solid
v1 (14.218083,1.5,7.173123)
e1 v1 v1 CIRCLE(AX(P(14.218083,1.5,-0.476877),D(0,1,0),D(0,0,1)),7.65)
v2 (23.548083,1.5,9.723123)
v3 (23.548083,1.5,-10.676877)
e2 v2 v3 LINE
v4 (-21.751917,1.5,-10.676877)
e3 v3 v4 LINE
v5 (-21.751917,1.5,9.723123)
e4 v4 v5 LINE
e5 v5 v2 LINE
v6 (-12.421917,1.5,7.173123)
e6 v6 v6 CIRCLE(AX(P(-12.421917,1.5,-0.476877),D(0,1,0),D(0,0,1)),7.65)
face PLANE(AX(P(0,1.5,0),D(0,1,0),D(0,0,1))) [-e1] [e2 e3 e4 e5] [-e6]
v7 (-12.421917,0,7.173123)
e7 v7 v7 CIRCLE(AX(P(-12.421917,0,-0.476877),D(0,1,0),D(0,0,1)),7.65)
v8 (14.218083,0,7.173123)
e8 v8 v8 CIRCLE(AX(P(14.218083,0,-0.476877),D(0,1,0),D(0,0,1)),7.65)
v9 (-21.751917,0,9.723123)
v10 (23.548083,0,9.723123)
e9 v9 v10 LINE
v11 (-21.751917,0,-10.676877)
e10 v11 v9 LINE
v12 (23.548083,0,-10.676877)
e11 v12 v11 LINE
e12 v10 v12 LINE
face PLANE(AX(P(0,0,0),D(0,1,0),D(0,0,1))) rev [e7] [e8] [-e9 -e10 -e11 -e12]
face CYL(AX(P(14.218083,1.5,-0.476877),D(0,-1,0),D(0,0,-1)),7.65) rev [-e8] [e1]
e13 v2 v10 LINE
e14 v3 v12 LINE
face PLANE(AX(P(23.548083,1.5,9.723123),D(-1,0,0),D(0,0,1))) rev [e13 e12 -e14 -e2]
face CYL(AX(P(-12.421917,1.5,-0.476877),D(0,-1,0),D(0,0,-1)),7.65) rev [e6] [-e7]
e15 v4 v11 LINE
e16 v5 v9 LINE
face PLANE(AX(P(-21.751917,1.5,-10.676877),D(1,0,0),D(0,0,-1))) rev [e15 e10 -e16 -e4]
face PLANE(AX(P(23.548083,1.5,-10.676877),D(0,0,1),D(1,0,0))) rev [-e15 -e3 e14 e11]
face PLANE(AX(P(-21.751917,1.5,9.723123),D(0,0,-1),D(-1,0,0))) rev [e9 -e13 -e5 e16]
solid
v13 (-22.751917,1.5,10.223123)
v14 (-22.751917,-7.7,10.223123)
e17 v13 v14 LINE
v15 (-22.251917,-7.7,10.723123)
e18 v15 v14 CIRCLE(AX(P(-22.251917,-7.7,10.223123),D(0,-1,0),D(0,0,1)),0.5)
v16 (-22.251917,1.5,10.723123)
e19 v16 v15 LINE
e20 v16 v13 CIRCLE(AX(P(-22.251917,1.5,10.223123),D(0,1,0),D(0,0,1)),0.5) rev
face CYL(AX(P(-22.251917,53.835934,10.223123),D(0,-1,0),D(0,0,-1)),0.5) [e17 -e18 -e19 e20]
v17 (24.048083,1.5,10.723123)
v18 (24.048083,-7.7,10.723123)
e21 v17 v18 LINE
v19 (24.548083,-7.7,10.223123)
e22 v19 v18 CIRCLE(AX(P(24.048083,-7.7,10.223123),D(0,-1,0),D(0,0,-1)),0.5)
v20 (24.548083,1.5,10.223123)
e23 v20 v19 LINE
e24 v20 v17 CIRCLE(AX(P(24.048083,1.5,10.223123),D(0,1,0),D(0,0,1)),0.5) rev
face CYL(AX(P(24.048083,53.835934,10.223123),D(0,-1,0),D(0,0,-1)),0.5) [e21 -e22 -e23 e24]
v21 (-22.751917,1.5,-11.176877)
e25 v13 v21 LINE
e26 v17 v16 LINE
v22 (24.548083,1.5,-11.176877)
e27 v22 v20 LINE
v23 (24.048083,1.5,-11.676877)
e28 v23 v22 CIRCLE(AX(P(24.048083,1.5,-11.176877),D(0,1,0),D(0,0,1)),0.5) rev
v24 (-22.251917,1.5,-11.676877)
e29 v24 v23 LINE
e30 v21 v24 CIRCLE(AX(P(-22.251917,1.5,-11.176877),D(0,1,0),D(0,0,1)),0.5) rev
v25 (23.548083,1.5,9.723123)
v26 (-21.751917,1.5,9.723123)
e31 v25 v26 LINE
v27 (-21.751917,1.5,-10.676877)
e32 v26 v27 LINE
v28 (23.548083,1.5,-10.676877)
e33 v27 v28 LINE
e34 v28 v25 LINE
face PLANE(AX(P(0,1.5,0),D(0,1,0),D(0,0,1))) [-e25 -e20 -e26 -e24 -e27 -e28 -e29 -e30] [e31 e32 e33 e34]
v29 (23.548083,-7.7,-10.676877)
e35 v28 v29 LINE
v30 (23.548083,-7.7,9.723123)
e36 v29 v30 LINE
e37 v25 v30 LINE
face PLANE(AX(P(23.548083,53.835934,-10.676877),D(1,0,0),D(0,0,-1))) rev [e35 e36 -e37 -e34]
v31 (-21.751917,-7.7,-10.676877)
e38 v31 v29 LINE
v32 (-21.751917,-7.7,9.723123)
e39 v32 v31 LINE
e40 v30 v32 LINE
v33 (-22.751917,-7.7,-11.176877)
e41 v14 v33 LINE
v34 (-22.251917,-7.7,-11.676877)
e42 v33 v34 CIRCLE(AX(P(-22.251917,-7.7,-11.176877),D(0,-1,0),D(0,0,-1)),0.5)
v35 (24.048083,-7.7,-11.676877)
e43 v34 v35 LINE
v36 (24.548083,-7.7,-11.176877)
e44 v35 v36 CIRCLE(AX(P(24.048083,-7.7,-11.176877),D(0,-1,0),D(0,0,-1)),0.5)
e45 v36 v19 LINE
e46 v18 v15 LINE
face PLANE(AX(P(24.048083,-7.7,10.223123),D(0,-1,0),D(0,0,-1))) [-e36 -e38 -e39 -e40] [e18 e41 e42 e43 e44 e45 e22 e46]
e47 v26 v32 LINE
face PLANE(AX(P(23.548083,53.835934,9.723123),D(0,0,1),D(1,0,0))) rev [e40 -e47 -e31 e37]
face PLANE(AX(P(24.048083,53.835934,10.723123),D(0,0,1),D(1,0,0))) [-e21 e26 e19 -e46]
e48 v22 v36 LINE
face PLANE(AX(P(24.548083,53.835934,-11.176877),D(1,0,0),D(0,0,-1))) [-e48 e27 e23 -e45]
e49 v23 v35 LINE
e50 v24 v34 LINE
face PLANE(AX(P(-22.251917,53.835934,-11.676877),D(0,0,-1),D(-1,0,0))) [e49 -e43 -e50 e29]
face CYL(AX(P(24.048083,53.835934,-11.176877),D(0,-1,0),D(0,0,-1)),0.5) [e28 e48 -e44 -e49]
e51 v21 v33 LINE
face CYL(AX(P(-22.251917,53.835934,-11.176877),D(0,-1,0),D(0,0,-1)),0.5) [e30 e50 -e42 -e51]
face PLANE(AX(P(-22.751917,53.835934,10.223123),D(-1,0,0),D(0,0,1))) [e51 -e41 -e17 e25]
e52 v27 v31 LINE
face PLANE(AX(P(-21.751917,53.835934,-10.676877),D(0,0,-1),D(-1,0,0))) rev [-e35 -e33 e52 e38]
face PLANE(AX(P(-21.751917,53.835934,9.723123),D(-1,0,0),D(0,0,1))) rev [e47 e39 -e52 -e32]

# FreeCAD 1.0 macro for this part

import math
import FreeCAD as App
import Part
import Sketcher
from FreeCAD import Vector
Q = App.Units.Quantity

doc = App.newDocument("Part")
params = doc.addObject("Spreadsheet::Sheet", "Params")
for row, (alias, value) in enumerate([
    ("sketch1_diameter", "15.3 mm"),
    ("sketch1_width", "45.3 mm"),
    ("sketch1_height", "20.4 mm"),
    ("pad1_length", "1.5 mm"),
    ("sketch2_radius", "0.5 mm"),
    ("sketch2_width", "46.3 mm"),
    ("sketch2_width2", "45.3 mm"),
    ("sketch2_height", "21.4 mm"),
    ("sketch2_height2", "20.4 mm"),
    ("pad2_length", "7.7 mm"),
    ("pad2_length2", "1.5 mm"),
], start=1):
    params.set(f"A{row}", alias)
    params.set(f"B{row}", "=" + value)
    params.setAlias(f"B{row}", alias)

body = doc.addObject("PartDesign::Body", "Body")

sketch1 = body.newObject("Sketcher::SketchObject", "Sketch")
sketch1.AttachmentSupport = (doc.getObject("XZ_Plane"), [""])
sketch1.MapMode = "FlatFace"
sketch1.addGeometry([
    Part.LineSegment(Vector(-21.751917, -10.676877, 0), Vector(-21.751917, 9.723123, 0)),
    Part.LineSegment(Vector(-21.751917, 9.723123, 0), Vector(23.548083, 9.723123, 0)),
    Part.LineSegment(Vector(23.548083, 9.723123, 0), Vector(23.548083, -10.676877, 0)),
    Part.LineSegment(Vector(23.548083, -10.676877, 0), Vector(-21.751917, -10.676877, 0)),
    Part.Circle(Vector(-12.421917, -0.476877, 0), Vector(0, 0, 1), 7.65),
    Part.Circle(Vector(14.218083, -0.476877, 0), Vector(0, 0, 1), 7.65),
], False)
sketch1.addConstraint([
    Sketcher.Constraint("Coincident", 0, 2, 1, 1),
    Sketcher.Constraint("Coincident", 1, 2, 2, 1),
    Sketcher.Constraint("Coincident", 2, 2, 3, 1),
    Sketcher.Constraint("Coincident", 3, 2, 0, 1),
    Sketcher.Constraint("Vertical", 0),
    Sketcher.Constraint("Horizontal", 1),
    Sketcher.Constraint("Vertical", 2),
    Sketcher.Constraint("Horizontal", 3),
    Sketcher.Constraint("Equal", 4, 5),
    Sketcher.Constraint("Horizontal", 4, 3, 5, 3),
    Sketcher.Constraint("Diameter", 4, Q("15.3 mm")),
    Sketcher.Constraint("DistanceX", 1, 1, 1, 2, Q("45.3 mm")),
    Sketcher.Constraint("DistanceY", 0, 1, 0, 2, Q("20.4 mm")),
    Sketcher.Constraint("DistanceY", 4, 3, 0, 2, Q("10.2 mm")),
    Sketcher.Constraint("DistanceX", 4, 3, 5, 3, Q("26.64 mm")),
    Sketcher.Constraint("DistanceX", 0, 2, 4, 3, Q("9.33 mm")),
    Sketcher.Constraint("DistanceX", 4, 3, -1, 1, Q("12.421917 mm")),
    Sketcher.Constraint("DistanceY", 4, 3, -1, 1, Q("0.476877 mm")),
])
sketch1.setExpression("Constraints[10]", "Params.sketch1_diameter")
sketch1.setExpression("Constraints[11]", "Params.sketch1_width")
sketch1.setExpression("Constraints[12]", "Params.sketch1_height")
pad1 = body.newObject("PartDesign::Pad", "Pad")
pad1.Profile = sketch1
pad1.setExpression("Length", "Params.pad1_length")
pad1.Reversed = True
body2 = doc.addObject("PartDesign::Body", "Body001")

sketch2 = body2.newObject("Sketcher::SketchObject", "Sketch001")
sketch2.AttachmentSupport = (doc.getObject("XZ_Plane001"), [""])
sketch2.MapMode = "FlatFace"
sketch2.addGeometry([
    Part.LineSegment(Vector(-22.751917, 10.223123, 0), Vector(-22.751917, -11.176877, 0)),
    Part.ArcOfCircle(Part.Circle(Vector(-22.251917, -11.176877, 0), Vector(0, 0, 1), 0.5), math.radians(180), math.radians(270)),
    Part.LineSegment(Vector(-22.251917, -11.676877, 0), Vector(24.048083, -11.676877, 0)),
    Part.ArcOfCircle(Part.Circle(Vector(24.048083, -11.176877, 0), Vector(0, 0, 1), 0.5), math.radians(-90), math.radians(0)),
    Part.LineSegment(Vector(24.548083, -11.176877, 0), Vector(24.548083, 10.223123, 0)),
    Part.ArcOfCircle(Part.Circle(Vector(24.048083, 10.223123, 0), Vector(0, 0, 1), 0.5), math.radians(0), math.radians(90)),
    Part.LineSegment(Vector(24.048083, 10.723123, 0), Vector(-22.251917, 10.723123, 0)),
    Part.ArcOfCircle(Part.Circle(Vector(-22.251917, 10.223123, 0), Vector(0, 0, 1), 0.5), math.radians(90), math.radians(180)),
    Part.LineSegment(Vector(23.548083, -10.676877, 0), Vector(-21.751917, -10.676877, 0)),
    Part.LineSegment(Vector(-21.751917, -10.676877, 0), Vector(-21.751917, 9.723123, 0)),
    Part.LineSegment(Vector(-21.751917, 9.723123, 0), Vector(23.548083, 9.723123, 0)),
    Part.LineSegment(Vector(23.548083, 9.723123, 0), Vector(23.548083, -10.676877, 0)),
], False)
sketch2.addConstraint([
    Sketcher.Constraint("Tangent", 0, 2, 1, 1),
    Sketcher.Constraint("Tangent", 1, 2, 2, 1),
    Sketcher.Constraint("Tangent", 2, 2, 3, 1),
    Sketcher.Constraint("Tangent", 3, 2, 4, 1),
    Sketcher.Constraint("Tangent", 4, 2, 5, 1),
    Sketcher.Constraint("Tangent", 5, 2, 6, 1),
    Sketcher.Constraint("Tangent", 6, 2, 7, 1),
    Sketcher.Constraint("Tangent", 7, 2, 0, 1),
    Sketcher.Constraint("Coincident", 8, 2, 9, 1),
    Sketcher.Constraint("Coincident", 9, 2, 10, 1),
    Sketcher.Constraint("Coincident", 10, 2, 11, 1),
    Sketcher.Constraint("Coincident", 11, 2, 8, 1),
    Sketcher.Constraint("Vertical", 0),
    Sketcher.Constraint("Horizontal", 2),
    Sketcher.Constraint("Vertical", 4),
    Sketcher.Constraint("Horizontal", 6),
    Sketcher.Constraint("Horizontal", 8),
    Sketcher.Constraint("Vertical", 9),
    Sketcher.Constraint("Horizontal", 10),
    Sketcher.Constraint("Vertical", 11),
    Sketcher.Constraint("Equal", 1, 3),
    Sketcher.Constraint("Equal", 3, 5),
    Sketcher.Constraint("Equal", 5, 7),
    Sketcher.Constraint("Radius", 1, Q("0.5 mm")),
    Sketcher.Constraint("DistanceX", 2, 1, 2, 2, Q("46.3 mm")),
    Sketcher.Constraint("DistanceX", 8, 2, 8, 1, Q("45.3 mm")),
    Sketcher.Constraint("DistanceY", 0, 2, 0, 1, Q("21.4 mm")),
    Sketcher.Constraint("DistanceY", 9, 1, 9, 2, Q("20.4 mm")),
    Sketcher.Constraint("DistanceX", 0, 2, 8, 2, Q("1 mm")),
    Sketcher.Constraint("DistanceY", 1, 2, 8, 2, Q("1 mm")),
    Sketcher.Constraint("DistanceX", 1, 3, -1, 1, Q("22.251917 mm")),
    Sketcher.Constraint("DistanceY", 1, 3, -1, 1, Q("11.176877 mm")),
])
sketch2.setExpression("Constraints[23]", "Params.sketch2_radius")
sketch2.setExpression("Constraints[24]", "Params.sketch2_width")
sketch2.setExpression("Constraints[25]", "Params.sketch2_width2")
sketch2.setExpression("Constraints[26]", "Params.sketch2_height")
sketch2.setExpression("Constraints[27]", "Params.sketch2_height2")
pad2 = body2.newObject("PartDesign::Pad", "Pad001")
pad2.Profile = sketch2
pad2.Type = "TwoLengths"
pad2.setExpression("Length", "Params.pad2_length")
pad2.setExpression("Length2", "Params.pad2_length2")

doc.recompute()
